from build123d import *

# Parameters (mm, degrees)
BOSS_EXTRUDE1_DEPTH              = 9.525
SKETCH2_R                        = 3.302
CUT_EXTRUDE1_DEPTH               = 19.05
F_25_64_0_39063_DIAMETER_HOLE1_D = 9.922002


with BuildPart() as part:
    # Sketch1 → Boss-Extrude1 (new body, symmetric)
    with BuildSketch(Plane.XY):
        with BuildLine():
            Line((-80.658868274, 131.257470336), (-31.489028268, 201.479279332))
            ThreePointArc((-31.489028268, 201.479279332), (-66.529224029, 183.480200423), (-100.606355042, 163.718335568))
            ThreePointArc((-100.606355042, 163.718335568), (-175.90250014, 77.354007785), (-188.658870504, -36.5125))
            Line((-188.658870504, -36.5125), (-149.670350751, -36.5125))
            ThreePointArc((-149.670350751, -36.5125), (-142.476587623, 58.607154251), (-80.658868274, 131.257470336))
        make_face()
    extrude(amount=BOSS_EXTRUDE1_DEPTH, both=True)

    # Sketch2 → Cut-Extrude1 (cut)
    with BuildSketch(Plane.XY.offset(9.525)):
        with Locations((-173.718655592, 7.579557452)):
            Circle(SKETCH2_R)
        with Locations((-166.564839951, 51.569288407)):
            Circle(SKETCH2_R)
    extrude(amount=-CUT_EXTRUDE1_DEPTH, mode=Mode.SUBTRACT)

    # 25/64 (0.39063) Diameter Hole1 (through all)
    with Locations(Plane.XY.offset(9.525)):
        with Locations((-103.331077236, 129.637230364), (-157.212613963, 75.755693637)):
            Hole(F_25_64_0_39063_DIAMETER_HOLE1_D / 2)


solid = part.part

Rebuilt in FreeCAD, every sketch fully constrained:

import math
import FreeCAD as App
import Part
import Sketcher
Q = App.Units.Quantity

doc = App.newDocument("Part")
body = doc.addObject("PartDesign::Body", "Body")

sketch1 = doc.addObject("Sketcher::SketchObject", "Sketch")
body.addObject(sketch1)
sketch1.AttachmentSupport = (doc.XY_Plane, [""])
sketch1.MapMode = "FlatFace"
sketch1.addGeometry(Part.LineSegment(App.Vector(-81, 131, 0), App.Vector(-31, 201, 0)), False)
sketch1.addGeometry(Part.ArcOfCircle(Part.Circle(App.Vector(304, -494, 0), App.Vector(0, 0, 1), 773), math.radians(115.73), math.radians(121.57)), False)
sketch1.addGeometry(Part.ArcOfCircle(Part.Circle(App.Vector(0, 0, 0), App.Vector(0, 0, 1), 192), math.radians(122), math.radians(191)), False)
sketch1.addGeometry(Part.LineSegment(App.Vector(-189, -37, 0), App.Vector(-150, -37, 0)), False)
sketch1.addGeometry(Part.ArcOfCircle(Part.Circle(App.Vector(0, 0, 0), App.Vector(0, 0, 1), 154), math.radians(122), math.radians(194)), False)
sketch1.addConstraint(Sketcher.Constraint("Coincident", 0, 2, 1, 1))
sketch1.addConstraint(Sketcher.Constraint("Tangent", 1, 2, 2, 1))
sketch1.addConstraint(Sketcher.Constraint("Coincident", 2, 2, 3, 1))
sketch1.addConstraint(Sketcher.Constraint("Coincident", 3, 2, 4, 2))
sketch1.addConstraint(Sketcher.Constraint("Coincident", 4, 1, 0, 1))
sketch1.addConstraint(Sketcher.Constraint("Horizontal", 3))
sketch1.addConstraint(Sketcher.Constraint("Coincident", 2, 3, -1, 1))
sketch1.addConstraint(Sketcher.Constraint("Coincident", 4, 3, -1, 1))
sketch1.addConstraint(Sketcher.Constraint("Angle", 0, Q("55 deg")))
sketch1.addConstraint(Sketcher.Constraint("Distance", 0, Q("3.375 in")))
sketch1.addConstraint(Sketcher.Constraint("DistanceY", 2, 2, -1, 1, Q("1.4375 in")))
sketch1.addConstraint(Sketcher.Constraint("Radius", 1, 772.527479))
sketch1.addConstraint(Sketcher.Constraint("Radius", 2, 192.159653))
sketch1.addConstraint(Sketcher.Constraint("Radius", 4, 154.059653))
sketch1.addConstraint(Sketcher.Constraint("DistanceY", 1, 3, -1, 1, 494.468289))
pad1 = doc.addObject("PartDesign::Pad", "Pad")
body.addObject(pad1)
pad1.Profile = sketch1
pad1.Length = Q("0.75 in")
pad1.Midplane = True

sketch2 = doc.addObject("Sketcher::SketchObject", "Sketch001")
body.addObject(sketch2)
sketch2.AttachmentSupport = (doc.XY_Plane, [""])
sketch2.MapMode = "FlatFace"
sketch2.AttachmentOffset = App.Placement(App.Vector(0, 0, 0.375 * 25.4), App.Rotation())
sketch2.addGeometry(Part.Circle(App.Vector(-173.7, 7.6, 0), App.Vector(0, 0, 1), 3.3), False)
sketch2.addGeometry(Part.Circle(App.Vector(-166.6, 51.6, 0), App.Vector(0, 0, 1), 3.3), False)
sketch2.addConstraint(Sketcher.Constraint("Equal", 0, 1))
sketch2.addConstraint(Sketcher.Constraint("Diameter", 0, Q("0.26 in")))
sketch2.addConstraint(Sketcher.Constraint("DistanceX", 1, 3, -1, 1, 166.56484))
sketch2.addConstraint(Sketcher.Constraint("DistanceY", -1, 1, 1, 3, 51.569288))
sketch2.addConstraint(Sketcher.Constraint("DistanceY", 0, 3, 1, 3, 43.989731))
sketch2.addConstraint(Sketcher.Constraint("DistanceX", 0, 3, -1, 1, 173.718656))
pocket1 = doc.addObject("PartDesign::Pocket", "Pocket")
body.addObject(pocket1)
pocket1.Profile = sketch2
pocket1.Length = Q("0.75 in")

sketch3 = doc.addObject("Sketcher::SketchObject", "Sketch002")
body.addObject(sketch3)
sketch3.AttachmentSupport = (doc.XY_Plane, [""])
sketch3.MapMode = "FlatFace"
sketch3.AttachmentOffset = App.Placement(App.Vector(0, 0, 0.375 * 25.4), App.Rotation())
sketch3.addGeometry(Part.Circle(App.Vector(-103.3, 129.6, 0), App.Vector(0, 0, 1), 5), False)
sketch3.addGeometry(Part.Circle(App.Vector(-157.2, 75.8, 0), App.Vector(0, 0, 1), 5), False)
sketch3.addConstraint(Sketcher.Constraint("Equal", 0, 1))
sketch3.addConstraint(Sketcher.Constraint("Diameter", 0, 9.922002))
sketch3.addConstraint(Sketcher.Constraint("DistanceY", -1, 1, 0, 3, 129.63723))
sketch3.addConstraint(Sketcher.Constraint("DistanceX", 0, 3, -1, 1, 103.331077))
sketch3.addConstraint(Sketcher.Constraint("DistanceX", 1, 3, -1, 1, 157.212614))
sketch3.addConstraint(Sketcher.Constraint("DistanceY", -1, 1, 1, 3, 75.755694))
doc.recompute()
hole = doc.addObject("PartDesign::Hole", "Hole")
body.addObject(hole)
hole.Profile = sketch3
hole.ThreadType = "None"
hole.Diameter = 9.922002
hole.DepthType = "ThroughAll"

doc.recompute()
